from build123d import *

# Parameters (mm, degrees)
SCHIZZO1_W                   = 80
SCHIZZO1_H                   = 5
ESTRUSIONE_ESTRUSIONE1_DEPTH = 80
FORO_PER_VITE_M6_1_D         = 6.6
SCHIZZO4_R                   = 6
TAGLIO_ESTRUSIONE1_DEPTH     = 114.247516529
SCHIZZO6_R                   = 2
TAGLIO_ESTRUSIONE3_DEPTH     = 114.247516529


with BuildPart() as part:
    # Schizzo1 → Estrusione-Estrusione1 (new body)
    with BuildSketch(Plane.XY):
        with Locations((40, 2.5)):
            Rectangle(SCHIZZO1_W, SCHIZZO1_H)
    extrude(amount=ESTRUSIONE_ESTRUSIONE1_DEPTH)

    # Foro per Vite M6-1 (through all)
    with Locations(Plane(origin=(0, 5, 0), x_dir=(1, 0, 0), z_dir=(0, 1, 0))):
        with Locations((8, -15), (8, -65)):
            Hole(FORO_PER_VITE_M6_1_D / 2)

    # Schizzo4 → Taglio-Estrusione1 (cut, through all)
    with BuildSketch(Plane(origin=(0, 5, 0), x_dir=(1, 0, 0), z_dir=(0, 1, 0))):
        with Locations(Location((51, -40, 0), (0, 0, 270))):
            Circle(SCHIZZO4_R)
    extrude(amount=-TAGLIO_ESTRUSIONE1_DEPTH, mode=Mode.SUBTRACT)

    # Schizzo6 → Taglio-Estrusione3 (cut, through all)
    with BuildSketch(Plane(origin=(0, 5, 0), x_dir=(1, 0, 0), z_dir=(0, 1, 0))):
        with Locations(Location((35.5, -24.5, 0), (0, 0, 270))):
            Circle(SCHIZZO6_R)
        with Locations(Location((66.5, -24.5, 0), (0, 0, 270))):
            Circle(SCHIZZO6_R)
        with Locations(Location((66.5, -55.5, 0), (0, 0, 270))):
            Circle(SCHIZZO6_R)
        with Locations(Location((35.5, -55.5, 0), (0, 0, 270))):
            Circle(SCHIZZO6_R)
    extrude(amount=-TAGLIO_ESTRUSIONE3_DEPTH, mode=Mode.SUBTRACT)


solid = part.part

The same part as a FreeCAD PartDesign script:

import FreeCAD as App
import Part
import Sketcher

V = App.Vector
Q = App.Units.Quantity

doc = App.newDocument("Part")
body = doc.addObject("PartDesign::Body", "Body")

# Sketch on XY plane
sketch1 = body.newObject("Sketcher::SketchObject", "Sketch")
sketch1.AttachmentSupport = (doc.getObject("XY_Plane"), [""])
sketch1.MapMode = "FlatFace"
sketch1.addGeometry([
    Part.LineSegment(V(0, 5, 0), V(0, 0, 0)),
    Part.LineSegment(V(0, 0, 0), V(80, 0, 0)),
    Part.LineSegment(V(80, 0, 0), V(80, 5, 0)),
    Part.LineSegment(V(80, 5, 0), V(0, 5, 0)),
], False)
sketch1.addConstraint([
    Sketcher.Constraint("Coincident", 0, 2, 1, 1),
    Sketcher.Constraint("Coincident", 1, 2, 2, 1),
    Sketcher.Constraint("Coincident", 2, 2, 3, 1),
    Sketcher.Constraint("Coincident", 3, 2, 0, 1),
    Sketcher.Constraint("Vertical", 0),
    Sketcher.Constraint("Horizontal", 1),
    Sketcher.Constraint("Vertical", 2),
    Sketcher.Constraint("Horizontal", 3),
    Sketcher.Constraint("Coincident", 0, 2, -1, 1),
    Sketcher.Constraint("DistanceX", 1, 1, 1, 2, Q("80 mm")),
    Sketcher.Constraint("DistanceY", 0, 2, 0, 1, Q("5 mm")),
])
pad1 = body.newObject("PartDesign::Pad", "Pad")
pad1.Profile = sketch1
pad1.Length = 80

# Sketch on XZ plane
sketch2 = body.newObject("Sketcher::SketchObject", "Sketch001")
sketch2.AttachmentSupport = (doc.getObject("XZ_Plane"), [""])
sketch2.MapMode = "FlatFace"
sketch2.AttachmentOffset = App.Placement(V(0, 0, -5), App.Rotation())
sketch2.addGeometry([
    Part.Circle(V(8, 15, 0), V(0, 0, 1), 3.3),
    Part.Circle(V(8, 65, 0), V(0, 0, 1), 3.3),
], False)
sketch2.addConstraint([
    Sketcher.Constraint("Equal", 0, 1),
    Sketcher.Constraint("Vertical", 0, 3, 1, 3),
    Sketcher.Constraint("Diameter", 0, Q("6.6 mm")),
    Sketcher.Constraint("DistanceX", -1, 1, 0, 3, Q("8 mm")),
    Sketcher.Constraint("DistanceY", -1, 1, 0, 3, Q("15 mm")),
    Sketcher.Constraint("DistanceY", -1, 1, 1, 3, Q("65 mm")),
])
doc.recompute()
hole = body.newObject("PartDesign::Hole", "Hole")
hole.Profile = sketch2
hole.ThreadType = "None"
hole.Diameter = 6.6
hole.DepthType = "ThroughAll"
hole.Reversed = True

# Sketch on XZ plane
sketch3 = body.newObject("Sketcher::SketchObject", "Sketch002")
sketch3.AttachmentSupport = (doc.getObject("XZ_Plane"), [""])
sketch3.MapMode = "FlatFace"
sketch3.AttachmentOffset = App.Placement(V(0, 0, -5), App.Rotation())
sketch3.addGeometry(Part.Circle(V(51, 40, 0), V(0, 0, 1), 6), False)
sketch3.addConstraint([
    Sketcher.Constraint("Diameter", 0, Q("12 mm")),
    Sketcher.Constraint("DistanceX", -1, 1, 0, 3, Q("51 mm")),
    Sketcher.Constraint("DistanceY", -1, 1, 0, 3, Q("40 mm")),
])
pocket1 = body.newObject("PartDesign::Pocket", "Pocket")
pocket1.Profile = sketch3
pocket1.Type = "ThroughAll"
pocket1.Reversed = True

# Sketch on XZ plane
sketch4 = body.newObject("Sketcher::SketchObject", "Sketch003")
sketch4.AttachmentSupport = (doc.getObject("XZ_Plane"), [""])
sketch4.MapMode = "FlatFace"
sketch4.AttachmentOffset = App.Placement(V(0, 0, -5), App.Rotation())
sketch4.addGeometry([
    Part.Circle(V(35.5, 24.5, 0), V(0, 0, 1), 2),
    Part.Circle(V(66.5, 24.5, 0), V(0, 0, 1), 2),
    Part.Circle(V(66.5, 55.5, 0), V(0, 0, 1), 2),
    Part.Circle(V(35.5, 55.5, 0), V(0, 0, 1), 2),
], False)
sketch4.addConstraint([
    Sketcher.Constraint("Equal", 0, 1),
    Sketcher.Constraint("Equal", 1, 2),
    Sketcher.Constraint("Equal", 2, 3),
    Sketcher.Constraint("Horizontal", 0, 3, 1, 3),
    Sketcher.Constraint("Horizontal", 2, 3, 3, 3),
    Sketcher.Constraint("Vertical", 1, 3, 2, 3),
    Sketcher.Constraint("Vertical", 0, 3, 3, 3),
    Sketcher.Constraint("Diameter", 0, Q("4 mm")),
    Sketcher.Constraint("DistanceX", 0, 3, 1, 3, Q("31 mm")),
    Sketcher.Constraint("DistanceY", 1, 3, 2, 3, Q("31 mm")),
    Sketcher.Constraint("DistanceX", -1, 1, 0, 3, Q("35.5 mm")),
    Sketcher.Constraint("DistanceY", -1, 1, 0, 3, Q("24.5 mm")),
])
pocket2 = body.newObject("PartDesign::Pocket", "Pocket001")
pocket2.Profile = sketch4
pocket2.Type = "ThroughAll"
pocket2.Reversed = True

doc.recompute()
